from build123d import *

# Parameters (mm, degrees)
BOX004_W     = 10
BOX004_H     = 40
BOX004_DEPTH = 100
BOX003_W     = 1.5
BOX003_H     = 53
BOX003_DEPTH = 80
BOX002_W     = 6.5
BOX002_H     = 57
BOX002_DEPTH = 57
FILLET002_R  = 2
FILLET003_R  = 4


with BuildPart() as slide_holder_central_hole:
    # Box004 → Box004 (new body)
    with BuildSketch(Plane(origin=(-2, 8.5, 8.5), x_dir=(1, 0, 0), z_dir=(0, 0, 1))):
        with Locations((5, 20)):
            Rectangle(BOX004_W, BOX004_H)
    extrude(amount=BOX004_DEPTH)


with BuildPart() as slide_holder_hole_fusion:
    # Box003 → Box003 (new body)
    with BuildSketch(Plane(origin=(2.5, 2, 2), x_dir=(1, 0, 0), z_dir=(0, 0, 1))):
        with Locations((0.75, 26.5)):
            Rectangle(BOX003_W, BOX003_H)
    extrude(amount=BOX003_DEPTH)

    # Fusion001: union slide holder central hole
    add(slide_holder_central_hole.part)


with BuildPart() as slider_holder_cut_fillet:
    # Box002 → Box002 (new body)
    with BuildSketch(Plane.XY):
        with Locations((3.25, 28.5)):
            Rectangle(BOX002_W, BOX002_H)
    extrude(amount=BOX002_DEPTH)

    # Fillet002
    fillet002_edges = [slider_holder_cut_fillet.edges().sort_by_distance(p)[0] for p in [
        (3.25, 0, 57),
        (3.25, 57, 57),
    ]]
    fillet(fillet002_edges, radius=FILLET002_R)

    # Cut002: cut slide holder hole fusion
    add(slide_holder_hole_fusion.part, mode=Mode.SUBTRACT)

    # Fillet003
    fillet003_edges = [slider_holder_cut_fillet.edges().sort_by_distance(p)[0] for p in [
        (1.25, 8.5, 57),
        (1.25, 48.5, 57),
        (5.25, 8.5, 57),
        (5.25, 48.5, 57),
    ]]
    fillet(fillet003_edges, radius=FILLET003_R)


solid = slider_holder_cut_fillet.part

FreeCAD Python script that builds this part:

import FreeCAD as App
import Part
import Sketcher

V = App.Vector
Q = App.Units.Quantity


def edges_at(feature, points):
    """Names of the edges that pass closest to the given points."""
    edges = feature.Shape.Edges
    near = lambda p: min(range(len(edges)), key=lambda i: edges[i].distToShape(Part.Vertex(*p))[0])
    return sorted({f"Edge{near(p) + 1}" for p in points})


def add_polygon(sketch, points):
    """Adds a closed chain of lines whose ends are joined by coincident constraints."""
    first, n = sketch.GeometryCount, len(points)
    for a, b in zip(points, points[1:] + points[:1]):
        sketch.addGeometry(Part.LineSegment(App.Vector(*a, 0), App.Vector(*b, 0)), False)
    for i in range(n):
        sketch.addConstraint(Sketcher.Constraint("Coincident", first + i, 2, first + (i + 1) % n, 1))

doc = App.newDocument("Part")
body = doc.addObject("PartDesign::Body", "Body")

sketch1 = body.newObject("Sketcher::SketchObject", "Sketch")
sketch1.AttachmentSupport = (doc.getObject("XY_Plane"), [""])
sketch1.MapMode = "FlatFace"
sketch1.AttachmentOffset = App.Placement(V(0, 0, 8.5), App.Rotation())
add_polygon(sketch1, [(-2, 48.5), (-2, 8.5), (8, 8.5), (8, 48.5)])
sketch1.addConstraint([
    Sketcher.Constraint("Vertical", 0),
    Sketcher.Constraint("Horizontal", 1),
    Sketcher.Constraint("Vertical", 2),
    Sketcher.Constraint("Horizontal", 3),
    Sketcher.Constraint("DistanceX", 1, 1, 1, 2, Q("10 mm")),
    Sketcher.Constraint("DistanceY", 0, 2, 0, 1, Q("40 mm")),
    Sketcher.Constraint("DistanceX", 0, 2, -1, 1, Q("2 mm")),
    Sketcher.Constraint("DistanceY", -1, 1, 0, 2, Q("8.5 mm")),
])
pad1 = body.newObject("PartDesign::Pad", "Pad")
pad1.Profile = sketch1
pad1.Length = 100
body2 = doc.addObject("PartDesign::Body", "Body001")

sketch2 = body2.newObject("Sketcher::SketchObject", "Sketch001")
sketch2.AttachmentSupport = (doc.getObject("XY_Plane001"), [""])
sketch2.MapMode = "FlatFace"
sketch2.AttachmentOffset = App.Placement(V(0, 0, 2), App.Rotation())
add_polygon(sketch2, [(2.5, 55), (2.5, 2), (4, 2), (4, 55)])
sketch2.addConstraint([
    Sketcher.Constraint("Vertical", 0),
    Sketcher.Constraint("Horizontal", 1),
    Sketcher.Constraint("Vertical", 2),
    Sketcher.Constraint("Horizontal", 3),
    Sketcher.Constraint("DistanceY", 0, 2, 0, 1, Q("53 mm")),
    Sketcher.Constraint("DistanceX", 1, 1, 1, 2, Q("1.5 mm")),
    Sketcher.Constraint("DistanceY", -1, 1, 0, 2, Q("2 mm")),
    Sketcher.Constraint("DistanceX", -1, 1, 1, 2, Q("4 mm")),
])
pad2 = body2.newObject("PartDesign::Pad", "Pad001")
pad2.Profile = sketch2
pad2.Length = 80
doc.recompute()

boolean = body2.newObject("PartDesign::Boolean", "Boolean")
boolean.Type = "Fuse"
boolean.addObjects([body])
body3 = doc.addObject("PartDesign::Body", "Body002")

sketch3 = body3.newObject("Sketcher::SketchObject", "Sketch002")
sketch3.AttachmentSupport = (doc.getObject("XY_Plane002"), [""])
sketch3.MapMode = "FlatFace"
add_polygon(sketch3, [(0, 57), (0, 0), (6.5, 0), (6.5, 57)])
sketch3.addConstraint([
    Sketcher.Constraint("Vertical", 0),
    Sketcher.Constraint("Horizontal", 1),
    Sketcher.Constraint("Vertical", 2),
    Sketcher.Constraint("Horizontal", 3),
    Sketcher.Constraint("Coincident", 0, 2, -1, 1),
    Sketcher.Constraint("DistanceY", 0, 2, 0, 1, Q("57 mm")),
    Sketcher.Constraint("DistanceX", 1, 1, 1, 2, Q("6.5 mm")),
])
pad3 = body3.newObject("PartDesign::Pad", "Pad002")
pad3.Profile = sketch3
pad3.Length = 57
doc.recompute()

fillet = body3.newObject("PartDesign::Fillet", "Fillet")
fillet.Base = (pad3, edges_at(pad3, [(3.25, 0, 57), (3.25, 57, 57)]))
fillet.Radius = 2
doc.recompute()

boolean2 = body3.newObject("PartDesign::Boolean", "Boolean001")
boolean2.Type = "Cut"
boolean2.addObjects([body2])
doc.recompute()

fillet2 = body3.newObject("PartDesign::Fillet", "Fillet001")
fillet2.Base = (boolean2, edges_at(boolean2, [
    (1.25, 8.5, 57),
    (1.25, 48.5, 57),
    (5.25, 8.5, 57),
    (5.25, 48.5, 57),
]))
fillet2.Radius = 4

doc.recompute()
